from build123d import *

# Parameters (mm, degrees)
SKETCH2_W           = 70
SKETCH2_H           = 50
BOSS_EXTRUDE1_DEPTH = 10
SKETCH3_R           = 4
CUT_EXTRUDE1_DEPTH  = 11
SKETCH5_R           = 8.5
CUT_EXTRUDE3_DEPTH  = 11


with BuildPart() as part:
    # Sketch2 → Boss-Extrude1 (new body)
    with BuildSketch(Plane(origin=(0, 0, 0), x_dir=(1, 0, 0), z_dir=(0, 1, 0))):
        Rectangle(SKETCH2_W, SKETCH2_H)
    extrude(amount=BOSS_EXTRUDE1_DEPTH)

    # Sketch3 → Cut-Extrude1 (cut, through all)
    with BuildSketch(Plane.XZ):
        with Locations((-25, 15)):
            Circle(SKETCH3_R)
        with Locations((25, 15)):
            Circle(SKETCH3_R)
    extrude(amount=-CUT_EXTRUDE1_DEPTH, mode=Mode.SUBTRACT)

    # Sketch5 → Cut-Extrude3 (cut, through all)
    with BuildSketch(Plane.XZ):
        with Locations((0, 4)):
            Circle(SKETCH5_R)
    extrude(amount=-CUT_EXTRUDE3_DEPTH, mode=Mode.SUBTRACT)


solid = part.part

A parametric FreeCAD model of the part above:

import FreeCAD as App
import Part
import Sketcher

V = App.Vector

doc = App.newDocument("Part")
body = doc.addObject("PartDesign::Body", "Body")

# Sketch on XZ plane
sketch1 = body.newObject("Sketcher::SketchObject", "Sketch")
sketch1.AttachmentSupport = (doc.getObject("XZ_Plane"), [""])
sketch1.MapMode = "FlatFace"
sketch1.addGeometry(Part.LineSegment(V(-35, -25, 0), V(-35, 25, 0)), False)
sketch1.addGeometry(Part.LineSegment(V(-35, 25, 0), V(35, 25, 0)), False)
sketch1.addGeometry(Part.LineSegment(V(35, 25, 0), V(35, -25, 0)), False)
sketch1.addGeometry(Part.LineSegment(V(35, -25, 0), V(-35, -25, 0)), False)
sketch1.addConstraint(Sketcher.Constraint("Coincident", 0, 2, 1, 1))
sketch1.addConstraint(Sketcher.Constraint("Coincident", 1, 2, 2, 1))
sketch1.addConstraint(Sketcher.Constraint("Coincident", 2, 2, 3, 1))
sketch1.addConstraint(Sketcher.Constraint("Coincident", 3, 2, 0, 1))
sketch1.addConstraint(Sketcher.Constraint("Vertical", 0))
sketch1.addConstraint(Sketcher.Constraint("Horizontal", 1))
sketch1.addConstraint(Sketcher.Constraint("Vertical", 2))
sketch1.addConstraint(Sketcher.Constraint("Horizontal", 3))
sketch1.addConstraint(Sketcher.Constraint("Symmetric", 0, 2, 2, 2, -1, 1))
sketch1.addConstraint(Sketcher.Constraint("DistanceX", 1, 1, 1, 2, 70.0))
sketch1.addConstraint(Sketcher.Constraint("DistanceY", 0, 1, 0, 2, 50.0))
pad1 = body.newObject("PartDesign::Pad", "Pad")
pad1.Profile = sketch1
pad1.Length = 10
pad1.Reversed = True

# Sketch on XZ plane
sketch2 = body.newObject("Sketcher::SketchObject", "Sketch001")
sketch2.AttachmentSupport = (doc.getObject("XZ_Plane"), [""])
sketch2.MapMode = "FlatFace"
sketch2.addGeometry(Part.Circle(V(-25, 15, 0), V(0, 0, 1), 4), False)
sketch2.addGeometry(Part.Circle(V(25, 15, 0), V(0, 0, 1), 4), False)
sketch2.addConstraint(Sketcher.Constraint("Equal", 0, 1))
sketch2.addConstraint(Sketcher.Constraint("Symmetric", 0, 3, 1, 3, -2))
sketch2.addConstraint(Sketcher.Constraint("Diameter", 0, 8.0))
sketch2.addConstraint(Sketcher.Constraint("DistanceX", 0, 3, -1, 1, 25.0))
sketch2.addConstraint(Sketcher.Constraint("DistanceY", -1, 1, 0, 3, 15.0))
pocket1 = body.newObject("PartDesign::Pocket", "Pocket")
pocket1.Profile = sketch2
pocket1.Type = "ThroughAll"

# Sketch on XZ plane
sketch3 = body.newObject("Sketcher::SketchObject", "Sketch002")
sketch3.AttachmentSupport = (doc.getObject("XZ_Plane"), [""])
sketch3.MapMode = "FlatFace"
sketch3.addGeometry(Part.Circle(V(0, 4, 0), V(0, 0, 1), 8), False)
sketch3.addConstraint(Sketcher.Constraint("PointOnObject", 0, 3, -2))
sketch3.addConstraint(Sketcher.Constraint("Diameter", 0, 17.0))
sketch3.addConstraint(Sketcher.Constraint("DistanceY", -1, 1, 0, 3, 4.0))
pocket2 = body.newObject("PartDesign::Pocket", "Pocket001")
pocket2.Profile = sketch3
pocket2.Type = "ThroughAll"

doc.recompute()
